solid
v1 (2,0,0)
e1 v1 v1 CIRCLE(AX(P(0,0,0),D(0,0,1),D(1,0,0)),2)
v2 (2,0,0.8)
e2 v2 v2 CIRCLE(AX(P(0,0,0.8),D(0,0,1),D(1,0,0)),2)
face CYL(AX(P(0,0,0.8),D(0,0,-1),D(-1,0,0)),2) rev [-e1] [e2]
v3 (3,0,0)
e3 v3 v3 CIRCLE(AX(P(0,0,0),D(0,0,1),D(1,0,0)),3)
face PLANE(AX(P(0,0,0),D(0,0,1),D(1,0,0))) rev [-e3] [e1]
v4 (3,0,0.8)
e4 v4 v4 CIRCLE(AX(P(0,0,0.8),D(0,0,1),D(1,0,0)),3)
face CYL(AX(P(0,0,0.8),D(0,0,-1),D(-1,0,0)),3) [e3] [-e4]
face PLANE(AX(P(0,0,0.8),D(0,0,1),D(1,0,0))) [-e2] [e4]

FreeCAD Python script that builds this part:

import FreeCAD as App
import Part
import Sketcher

V = App.Vector

doc = App.newDocument("Part")
body = doc.addObject("PartDesign::Body", "Body")

# Sketch on XY plane
sketch1 = body.newObject("Sketcher::SketchObject", "Sketch")
sketch1.AttachmentSupport = (doc.getObject("XY_Plane"), [""])
sketch1.MapMode = "FlatFace"
sketch1.addGeometry(Part.Circle(V(0, 0, 0), V(0, 0, 1), 3), False)
sketch1.addGeometry(Part.Circle(V(0, 0, 0), V(0, 0, 1), 2), False)
sketch1.addConstraint(Sketcher.Constraint("Coincident", 0, 3, -1, 1))
sketch1.addConstraint(Sketcher.Constraint("Coincident", 1, 3, -1, 1))
sketch1.addConstraint(Sketcher.Constraint("Diameter", 0, 6.0))
sketch1.addConstraint(Sketcher.Constraint("Diameter", 1, 4.0))
pad1 = body.newObject("PartDesign::Pad", "Pad")
pad1.Profile = sketch1
pad1.Length = 0.8

doc.recompute()
